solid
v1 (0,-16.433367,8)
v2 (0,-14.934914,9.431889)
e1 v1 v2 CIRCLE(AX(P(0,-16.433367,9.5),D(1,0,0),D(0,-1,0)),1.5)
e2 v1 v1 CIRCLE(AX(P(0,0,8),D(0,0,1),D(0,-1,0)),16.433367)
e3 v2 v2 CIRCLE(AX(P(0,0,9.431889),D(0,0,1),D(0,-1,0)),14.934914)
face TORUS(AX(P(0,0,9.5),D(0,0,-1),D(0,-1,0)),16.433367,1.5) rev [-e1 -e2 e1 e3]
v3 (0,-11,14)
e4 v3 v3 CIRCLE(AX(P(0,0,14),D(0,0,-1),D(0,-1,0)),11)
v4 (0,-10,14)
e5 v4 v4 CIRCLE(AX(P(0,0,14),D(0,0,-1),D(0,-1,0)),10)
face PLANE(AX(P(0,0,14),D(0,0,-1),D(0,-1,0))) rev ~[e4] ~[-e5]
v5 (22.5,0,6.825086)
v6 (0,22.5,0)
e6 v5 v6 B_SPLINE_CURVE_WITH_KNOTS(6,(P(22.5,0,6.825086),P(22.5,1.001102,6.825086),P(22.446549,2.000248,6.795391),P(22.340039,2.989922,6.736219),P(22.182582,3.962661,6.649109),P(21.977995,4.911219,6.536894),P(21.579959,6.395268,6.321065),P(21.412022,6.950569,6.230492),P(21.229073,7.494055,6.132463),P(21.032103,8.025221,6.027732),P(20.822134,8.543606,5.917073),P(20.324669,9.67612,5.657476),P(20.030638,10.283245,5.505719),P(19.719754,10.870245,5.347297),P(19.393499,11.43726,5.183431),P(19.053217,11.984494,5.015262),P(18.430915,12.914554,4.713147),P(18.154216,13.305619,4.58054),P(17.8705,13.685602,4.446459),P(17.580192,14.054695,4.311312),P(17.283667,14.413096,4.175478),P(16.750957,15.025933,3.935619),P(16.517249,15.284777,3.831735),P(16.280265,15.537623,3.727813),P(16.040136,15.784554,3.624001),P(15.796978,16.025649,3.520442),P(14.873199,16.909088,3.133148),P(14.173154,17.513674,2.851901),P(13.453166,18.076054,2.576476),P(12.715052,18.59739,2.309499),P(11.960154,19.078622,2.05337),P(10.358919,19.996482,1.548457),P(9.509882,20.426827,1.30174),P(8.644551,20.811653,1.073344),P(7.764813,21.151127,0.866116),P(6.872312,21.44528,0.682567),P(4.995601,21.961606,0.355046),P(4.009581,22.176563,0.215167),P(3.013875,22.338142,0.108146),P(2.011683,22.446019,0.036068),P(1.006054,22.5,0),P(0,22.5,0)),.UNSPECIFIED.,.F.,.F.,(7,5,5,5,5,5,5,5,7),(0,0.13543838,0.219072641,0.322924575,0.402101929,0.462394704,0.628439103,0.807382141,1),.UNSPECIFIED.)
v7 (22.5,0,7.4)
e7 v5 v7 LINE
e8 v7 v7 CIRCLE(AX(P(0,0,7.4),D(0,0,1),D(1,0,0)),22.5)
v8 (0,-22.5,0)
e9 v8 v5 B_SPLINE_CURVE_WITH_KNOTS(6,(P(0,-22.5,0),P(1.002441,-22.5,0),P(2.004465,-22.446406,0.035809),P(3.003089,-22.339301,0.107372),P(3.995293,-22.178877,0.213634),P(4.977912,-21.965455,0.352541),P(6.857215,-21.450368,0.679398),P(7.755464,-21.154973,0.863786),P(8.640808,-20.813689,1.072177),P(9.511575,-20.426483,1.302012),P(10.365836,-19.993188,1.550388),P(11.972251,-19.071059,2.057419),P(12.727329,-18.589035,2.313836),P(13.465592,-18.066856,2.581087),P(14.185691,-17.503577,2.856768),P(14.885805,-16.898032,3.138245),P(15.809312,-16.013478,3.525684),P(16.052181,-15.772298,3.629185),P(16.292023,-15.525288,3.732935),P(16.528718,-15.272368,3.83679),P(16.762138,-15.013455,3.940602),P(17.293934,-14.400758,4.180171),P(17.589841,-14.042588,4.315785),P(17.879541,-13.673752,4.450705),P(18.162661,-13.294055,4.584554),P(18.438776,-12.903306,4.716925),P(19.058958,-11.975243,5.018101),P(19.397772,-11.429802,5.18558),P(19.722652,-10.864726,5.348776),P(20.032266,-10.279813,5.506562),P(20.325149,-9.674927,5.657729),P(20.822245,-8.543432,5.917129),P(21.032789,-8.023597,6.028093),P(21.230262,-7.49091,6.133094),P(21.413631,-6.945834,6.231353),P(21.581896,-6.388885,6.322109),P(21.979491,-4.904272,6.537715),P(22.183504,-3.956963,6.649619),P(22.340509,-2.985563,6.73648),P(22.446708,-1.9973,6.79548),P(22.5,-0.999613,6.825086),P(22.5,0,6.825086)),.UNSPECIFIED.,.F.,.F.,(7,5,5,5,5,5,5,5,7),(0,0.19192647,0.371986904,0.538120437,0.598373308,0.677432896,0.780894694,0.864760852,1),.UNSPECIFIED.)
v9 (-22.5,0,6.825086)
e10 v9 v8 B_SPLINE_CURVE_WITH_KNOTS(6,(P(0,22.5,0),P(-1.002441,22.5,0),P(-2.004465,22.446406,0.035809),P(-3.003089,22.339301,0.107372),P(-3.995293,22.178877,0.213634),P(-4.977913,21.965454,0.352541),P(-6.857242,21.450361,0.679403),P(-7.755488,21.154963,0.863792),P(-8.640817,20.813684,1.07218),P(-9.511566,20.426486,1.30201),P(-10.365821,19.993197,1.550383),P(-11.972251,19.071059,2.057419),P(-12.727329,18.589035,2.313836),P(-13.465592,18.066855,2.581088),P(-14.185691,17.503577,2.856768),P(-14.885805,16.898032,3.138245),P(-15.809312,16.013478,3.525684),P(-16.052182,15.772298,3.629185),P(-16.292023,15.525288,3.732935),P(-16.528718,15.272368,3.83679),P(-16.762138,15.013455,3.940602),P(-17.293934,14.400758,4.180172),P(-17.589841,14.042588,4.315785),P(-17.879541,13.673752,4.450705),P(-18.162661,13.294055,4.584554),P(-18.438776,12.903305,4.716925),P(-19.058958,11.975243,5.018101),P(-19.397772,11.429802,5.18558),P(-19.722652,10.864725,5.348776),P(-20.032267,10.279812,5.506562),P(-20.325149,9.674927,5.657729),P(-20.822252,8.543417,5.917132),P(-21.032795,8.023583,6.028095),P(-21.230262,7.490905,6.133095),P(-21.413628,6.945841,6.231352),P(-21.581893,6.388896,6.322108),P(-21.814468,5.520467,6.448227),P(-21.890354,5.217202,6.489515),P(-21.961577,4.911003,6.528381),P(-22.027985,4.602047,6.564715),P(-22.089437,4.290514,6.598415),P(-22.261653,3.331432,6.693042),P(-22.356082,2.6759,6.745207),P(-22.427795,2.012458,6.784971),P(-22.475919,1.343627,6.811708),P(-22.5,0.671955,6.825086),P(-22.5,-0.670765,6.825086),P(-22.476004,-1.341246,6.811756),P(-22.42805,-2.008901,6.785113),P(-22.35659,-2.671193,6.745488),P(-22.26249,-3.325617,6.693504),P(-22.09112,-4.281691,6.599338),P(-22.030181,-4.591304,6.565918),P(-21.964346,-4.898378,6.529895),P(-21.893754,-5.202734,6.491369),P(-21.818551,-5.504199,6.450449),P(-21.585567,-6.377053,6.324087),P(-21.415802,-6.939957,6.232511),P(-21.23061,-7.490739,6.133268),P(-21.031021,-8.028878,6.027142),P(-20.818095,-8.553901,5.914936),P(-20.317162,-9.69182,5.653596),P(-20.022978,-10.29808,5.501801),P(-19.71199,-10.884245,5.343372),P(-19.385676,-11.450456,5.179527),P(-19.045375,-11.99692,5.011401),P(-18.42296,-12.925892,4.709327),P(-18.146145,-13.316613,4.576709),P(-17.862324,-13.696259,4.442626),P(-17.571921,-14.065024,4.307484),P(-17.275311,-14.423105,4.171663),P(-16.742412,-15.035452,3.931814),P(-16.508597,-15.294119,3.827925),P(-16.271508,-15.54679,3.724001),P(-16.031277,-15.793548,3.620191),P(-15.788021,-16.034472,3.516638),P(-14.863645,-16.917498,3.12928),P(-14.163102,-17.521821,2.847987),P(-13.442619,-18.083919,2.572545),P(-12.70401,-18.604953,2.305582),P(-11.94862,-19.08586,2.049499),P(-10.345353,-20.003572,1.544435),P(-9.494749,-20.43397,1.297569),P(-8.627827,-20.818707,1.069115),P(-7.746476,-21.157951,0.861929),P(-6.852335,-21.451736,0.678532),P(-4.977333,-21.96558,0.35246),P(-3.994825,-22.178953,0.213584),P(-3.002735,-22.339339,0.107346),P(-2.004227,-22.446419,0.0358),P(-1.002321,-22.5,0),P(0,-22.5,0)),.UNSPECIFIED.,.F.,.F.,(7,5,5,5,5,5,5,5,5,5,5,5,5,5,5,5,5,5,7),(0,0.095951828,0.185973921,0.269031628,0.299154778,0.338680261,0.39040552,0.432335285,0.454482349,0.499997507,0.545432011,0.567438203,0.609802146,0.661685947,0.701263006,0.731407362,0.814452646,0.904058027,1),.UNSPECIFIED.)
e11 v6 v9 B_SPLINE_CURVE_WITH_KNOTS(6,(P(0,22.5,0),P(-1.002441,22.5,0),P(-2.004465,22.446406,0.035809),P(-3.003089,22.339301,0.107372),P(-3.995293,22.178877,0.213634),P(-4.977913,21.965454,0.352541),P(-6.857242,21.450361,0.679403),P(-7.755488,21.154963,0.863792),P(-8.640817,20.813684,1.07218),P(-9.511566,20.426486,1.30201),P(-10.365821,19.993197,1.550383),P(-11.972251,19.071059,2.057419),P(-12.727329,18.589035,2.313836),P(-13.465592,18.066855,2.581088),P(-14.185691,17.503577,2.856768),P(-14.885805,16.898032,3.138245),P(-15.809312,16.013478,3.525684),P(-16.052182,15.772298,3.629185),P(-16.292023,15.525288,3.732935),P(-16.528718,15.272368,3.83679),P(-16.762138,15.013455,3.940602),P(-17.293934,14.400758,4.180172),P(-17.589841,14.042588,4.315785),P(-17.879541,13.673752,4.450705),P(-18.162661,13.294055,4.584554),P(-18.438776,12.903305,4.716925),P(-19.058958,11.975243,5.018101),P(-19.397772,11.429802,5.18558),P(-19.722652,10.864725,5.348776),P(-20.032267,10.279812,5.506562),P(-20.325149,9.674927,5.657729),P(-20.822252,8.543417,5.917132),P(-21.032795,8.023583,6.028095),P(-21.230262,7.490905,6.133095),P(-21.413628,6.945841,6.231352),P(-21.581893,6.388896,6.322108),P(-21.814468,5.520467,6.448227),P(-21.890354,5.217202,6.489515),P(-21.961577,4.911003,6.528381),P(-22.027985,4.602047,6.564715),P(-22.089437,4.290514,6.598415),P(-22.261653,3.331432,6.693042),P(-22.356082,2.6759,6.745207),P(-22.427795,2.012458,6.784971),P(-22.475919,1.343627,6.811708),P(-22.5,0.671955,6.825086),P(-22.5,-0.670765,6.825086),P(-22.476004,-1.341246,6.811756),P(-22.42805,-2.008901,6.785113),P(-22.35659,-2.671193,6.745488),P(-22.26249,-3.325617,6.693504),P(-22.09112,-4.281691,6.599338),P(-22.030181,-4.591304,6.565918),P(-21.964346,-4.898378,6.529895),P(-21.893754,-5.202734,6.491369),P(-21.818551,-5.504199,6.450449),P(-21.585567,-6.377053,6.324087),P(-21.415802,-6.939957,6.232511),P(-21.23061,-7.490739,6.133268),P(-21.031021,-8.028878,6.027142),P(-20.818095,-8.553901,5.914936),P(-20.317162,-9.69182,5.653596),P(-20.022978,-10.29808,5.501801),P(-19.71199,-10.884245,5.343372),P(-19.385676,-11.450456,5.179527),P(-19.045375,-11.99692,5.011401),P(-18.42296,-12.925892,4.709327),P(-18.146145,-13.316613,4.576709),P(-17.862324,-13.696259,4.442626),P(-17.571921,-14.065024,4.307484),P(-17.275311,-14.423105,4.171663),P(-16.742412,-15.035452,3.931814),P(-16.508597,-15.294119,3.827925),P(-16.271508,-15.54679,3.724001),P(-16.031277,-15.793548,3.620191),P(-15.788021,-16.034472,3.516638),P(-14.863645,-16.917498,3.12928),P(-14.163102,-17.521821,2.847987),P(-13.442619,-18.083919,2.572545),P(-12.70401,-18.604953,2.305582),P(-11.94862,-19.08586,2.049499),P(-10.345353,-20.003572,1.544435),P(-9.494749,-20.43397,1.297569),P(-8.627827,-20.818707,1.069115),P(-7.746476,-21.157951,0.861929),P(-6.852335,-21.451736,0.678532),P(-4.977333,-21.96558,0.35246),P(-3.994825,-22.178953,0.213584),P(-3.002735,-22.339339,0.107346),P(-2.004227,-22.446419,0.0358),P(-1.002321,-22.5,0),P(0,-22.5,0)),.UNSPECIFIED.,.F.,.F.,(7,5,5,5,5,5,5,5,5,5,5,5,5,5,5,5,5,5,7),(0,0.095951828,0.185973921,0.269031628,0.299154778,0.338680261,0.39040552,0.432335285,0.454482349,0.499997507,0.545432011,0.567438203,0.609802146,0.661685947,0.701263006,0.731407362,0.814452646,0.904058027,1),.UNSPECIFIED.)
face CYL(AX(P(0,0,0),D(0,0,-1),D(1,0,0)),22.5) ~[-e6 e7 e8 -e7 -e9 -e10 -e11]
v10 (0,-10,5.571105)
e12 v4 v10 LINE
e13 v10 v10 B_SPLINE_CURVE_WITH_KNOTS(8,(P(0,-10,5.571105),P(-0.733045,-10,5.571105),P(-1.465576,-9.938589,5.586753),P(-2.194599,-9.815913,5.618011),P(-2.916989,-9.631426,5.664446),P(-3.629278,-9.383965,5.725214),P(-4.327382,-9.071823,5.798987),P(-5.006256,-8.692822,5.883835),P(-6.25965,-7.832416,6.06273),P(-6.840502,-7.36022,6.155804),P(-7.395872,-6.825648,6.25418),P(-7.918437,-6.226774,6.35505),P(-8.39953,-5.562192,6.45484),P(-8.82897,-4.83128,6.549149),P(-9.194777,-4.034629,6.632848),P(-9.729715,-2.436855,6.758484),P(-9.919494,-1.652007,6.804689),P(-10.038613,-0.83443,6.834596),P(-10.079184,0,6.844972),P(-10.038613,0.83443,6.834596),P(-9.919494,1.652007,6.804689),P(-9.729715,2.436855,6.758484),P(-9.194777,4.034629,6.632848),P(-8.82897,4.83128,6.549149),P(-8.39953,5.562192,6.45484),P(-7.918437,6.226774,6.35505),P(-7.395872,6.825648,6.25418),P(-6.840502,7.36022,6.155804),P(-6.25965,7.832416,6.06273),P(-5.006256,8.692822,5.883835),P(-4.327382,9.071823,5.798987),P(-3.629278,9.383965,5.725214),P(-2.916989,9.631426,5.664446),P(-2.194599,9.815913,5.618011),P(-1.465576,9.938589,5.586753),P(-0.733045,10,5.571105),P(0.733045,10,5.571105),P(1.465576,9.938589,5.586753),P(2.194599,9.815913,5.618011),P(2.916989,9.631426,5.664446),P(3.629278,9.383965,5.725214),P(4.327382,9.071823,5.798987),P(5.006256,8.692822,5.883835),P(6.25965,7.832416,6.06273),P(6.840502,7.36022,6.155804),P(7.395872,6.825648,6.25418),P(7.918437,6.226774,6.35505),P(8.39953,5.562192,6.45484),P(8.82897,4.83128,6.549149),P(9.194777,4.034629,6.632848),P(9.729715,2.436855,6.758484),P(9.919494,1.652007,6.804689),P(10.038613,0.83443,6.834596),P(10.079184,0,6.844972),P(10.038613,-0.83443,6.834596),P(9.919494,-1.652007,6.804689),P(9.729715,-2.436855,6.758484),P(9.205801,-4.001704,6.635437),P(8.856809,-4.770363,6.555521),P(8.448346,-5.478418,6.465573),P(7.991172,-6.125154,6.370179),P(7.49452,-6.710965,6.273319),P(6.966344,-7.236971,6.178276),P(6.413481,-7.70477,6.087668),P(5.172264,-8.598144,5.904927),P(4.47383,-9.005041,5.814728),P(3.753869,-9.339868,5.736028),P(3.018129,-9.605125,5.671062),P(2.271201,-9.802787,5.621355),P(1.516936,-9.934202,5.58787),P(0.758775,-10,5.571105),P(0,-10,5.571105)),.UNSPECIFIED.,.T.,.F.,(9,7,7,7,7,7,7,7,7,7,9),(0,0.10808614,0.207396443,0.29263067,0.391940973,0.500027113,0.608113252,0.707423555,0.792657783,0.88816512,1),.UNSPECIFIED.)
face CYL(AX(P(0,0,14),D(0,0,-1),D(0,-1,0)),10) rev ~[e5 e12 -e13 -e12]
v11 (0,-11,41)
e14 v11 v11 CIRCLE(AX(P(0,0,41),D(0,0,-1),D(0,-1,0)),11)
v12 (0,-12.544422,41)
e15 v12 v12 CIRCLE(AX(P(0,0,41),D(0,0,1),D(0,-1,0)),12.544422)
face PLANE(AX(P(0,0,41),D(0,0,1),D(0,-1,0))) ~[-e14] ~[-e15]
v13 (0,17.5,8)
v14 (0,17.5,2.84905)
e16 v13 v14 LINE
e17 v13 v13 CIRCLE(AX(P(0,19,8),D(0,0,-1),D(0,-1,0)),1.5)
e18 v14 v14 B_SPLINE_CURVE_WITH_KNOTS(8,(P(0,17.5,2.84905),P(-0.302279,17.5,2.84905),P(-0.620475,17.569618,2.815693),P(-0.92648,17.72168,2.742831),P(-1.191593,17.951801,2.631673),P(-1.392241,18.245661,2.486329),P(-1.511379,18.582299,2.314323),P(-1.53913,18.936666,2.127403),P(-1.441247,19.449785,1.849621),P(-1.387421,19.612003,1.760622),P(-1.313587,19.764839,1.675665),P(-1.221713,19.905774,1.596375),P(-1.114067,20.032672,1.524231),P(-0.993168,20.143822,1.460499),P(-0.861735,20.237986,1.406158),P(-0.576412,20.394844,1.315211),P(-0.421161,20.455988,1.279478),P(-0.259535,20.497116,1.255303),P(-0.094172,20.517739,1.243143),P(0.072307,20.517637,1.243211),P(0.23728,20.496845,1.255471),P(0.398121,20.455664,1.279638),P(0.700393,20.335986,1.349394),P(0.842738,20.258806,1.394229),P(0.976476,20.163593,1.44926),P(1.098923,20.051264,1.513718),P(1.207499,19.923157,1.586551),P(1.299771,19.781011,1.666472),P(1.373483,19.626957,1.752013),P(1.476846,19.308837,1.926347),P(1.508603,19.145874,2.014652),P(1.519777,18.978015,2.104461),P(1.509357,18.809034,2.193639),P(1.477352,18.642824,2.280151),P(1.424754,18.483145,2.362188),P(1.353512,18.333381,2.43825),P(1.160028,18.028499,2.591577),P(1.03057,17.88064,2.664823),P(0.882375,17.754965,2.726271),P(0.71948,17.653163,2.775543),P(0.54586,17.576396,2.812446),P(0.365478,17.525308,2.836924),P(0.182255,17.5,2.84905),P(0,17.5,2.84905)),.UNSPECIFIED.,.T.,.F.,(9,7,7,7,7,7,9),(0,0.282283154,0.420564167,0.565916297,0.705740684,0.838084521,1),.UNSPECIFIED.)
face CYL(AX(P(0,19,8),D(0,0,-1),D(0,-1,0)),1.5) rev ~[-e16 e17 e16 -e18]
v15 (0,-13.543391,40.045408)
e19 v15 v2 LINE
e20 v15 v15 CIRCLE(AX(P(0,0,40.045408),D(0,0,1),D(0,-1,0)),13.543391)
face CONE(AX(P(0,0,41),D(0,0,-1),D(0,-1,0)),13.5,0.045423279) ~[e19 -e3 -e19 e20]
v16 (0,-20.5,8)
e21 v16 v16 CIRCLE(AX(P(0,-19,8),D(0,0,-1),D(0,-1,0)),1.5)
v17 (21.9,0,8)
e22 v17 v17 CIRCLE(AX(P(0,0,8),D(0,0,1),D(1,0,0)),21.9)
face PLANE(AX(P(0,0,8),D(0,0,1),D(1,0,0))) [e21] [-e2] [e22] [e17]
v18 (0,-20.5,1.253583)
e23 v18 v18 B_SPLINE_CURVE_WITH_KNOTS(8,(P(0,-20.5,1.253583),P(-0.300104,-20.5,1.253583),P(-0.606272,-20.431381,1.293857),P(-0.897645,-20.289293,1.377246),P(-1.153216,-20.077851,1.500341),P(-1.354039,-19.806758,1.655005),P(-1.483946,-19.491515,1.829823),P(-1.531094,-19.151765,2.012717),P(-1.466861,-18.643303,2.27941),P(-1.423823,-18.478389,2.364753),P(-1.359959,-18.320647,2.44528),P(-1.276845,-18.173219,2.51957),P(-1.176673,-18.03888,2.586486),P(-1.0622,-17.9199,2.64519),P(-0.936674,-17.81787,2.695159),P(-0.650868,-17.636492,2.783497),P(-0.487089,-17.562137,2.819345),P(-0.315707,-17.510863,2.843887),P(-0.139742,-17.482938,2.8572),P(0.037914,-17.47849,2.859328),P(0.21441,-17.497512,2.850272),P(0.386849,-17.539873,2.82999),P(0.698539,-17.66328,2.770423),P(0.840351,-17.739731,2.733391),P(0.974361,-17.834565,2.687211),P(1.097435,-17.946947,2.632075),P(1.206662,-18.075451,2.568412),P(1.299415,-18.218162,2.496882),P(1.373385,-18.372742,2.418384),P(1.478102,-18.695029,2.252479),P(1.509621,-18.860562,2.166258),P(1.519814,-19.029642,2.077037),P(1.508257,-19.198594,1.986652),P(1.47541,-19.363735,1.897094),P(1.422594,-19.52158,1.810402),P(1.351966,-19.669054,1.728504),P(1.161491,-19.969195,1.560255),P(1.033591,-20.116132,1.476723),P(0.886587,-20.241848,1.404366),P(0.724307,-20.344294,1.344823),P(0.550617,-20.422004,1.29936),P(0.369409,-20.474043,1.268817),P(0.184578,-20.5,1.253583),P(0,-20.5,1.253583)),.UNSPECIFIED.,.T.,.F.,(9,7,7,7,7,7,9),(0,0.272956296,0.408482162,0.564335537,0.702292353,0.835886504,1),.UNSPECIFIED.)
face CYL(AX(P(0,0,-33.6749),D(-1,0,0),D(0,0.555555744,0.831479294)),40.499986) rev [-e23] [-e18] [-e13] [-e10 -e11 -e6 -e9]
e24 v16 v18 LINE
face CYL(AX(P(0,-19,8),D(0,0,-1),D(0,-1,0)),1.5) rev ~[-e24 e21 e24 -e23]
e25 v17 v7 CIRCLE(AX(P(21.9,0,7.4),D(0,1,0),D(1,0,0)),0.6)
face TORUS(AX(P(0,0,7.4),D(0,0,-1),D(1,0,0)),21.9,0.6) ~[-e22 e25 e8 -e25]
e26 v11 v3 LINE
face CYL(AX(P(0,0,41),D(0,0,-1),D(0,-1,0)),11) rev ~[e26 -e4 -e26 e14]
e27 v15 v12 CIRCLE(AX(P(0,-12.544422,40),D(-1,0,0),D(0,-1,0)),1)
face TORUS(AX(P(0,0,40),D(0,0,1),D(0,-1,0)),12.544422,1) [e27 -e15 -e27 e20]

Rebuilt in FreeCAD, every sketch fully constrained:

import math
import FreeCAD as App
import Part
import Sketcher
from FreeCAD import Vector


def edges_at(feature, points):
    """Names of the edges that pass closest to the given points."""
    edges = feature.Shape.Edges
    near = lambda p: min(range(len(edges)), key=lambda i: edges[i].distToShape(Part.Vertex(*p))[0])
    return sorted({f"Edge{near(p) + 1}" for p in points})

doc = App.newDocument("Part")
params = doc.addObject("Spreadsheet::Sheet", "Params")
for row, (alias, value) in enumerate([
    ("sketch1_diameter", "45 mm"),
    ("pad1_length", "8 mm"),
    ("sketch2_height", "33 mm"),
    ("sketch2_width", "15 mm"),
    ("sketch2_width2", "13.5 mm"),
    ("revolution_angle", "360 deg"),
    ("fillet_radius", "1.5 mm"),
    ("sketch3_radius", "40.5 mm"),
    ("sketch3_width", "45 mm"),
    ("pocket1_length", "45 mm"),
    ("fillet2_radius", "0.6 mm"),
    ("fillet3_radius", "1 mm"),
    ("sketch4_diameter", "20 mm"),
    ("hole_diameter", "20 mm"),
    ("hole_cbore_diameter", "22 mm"),
    ("hole_cbore_depth", "27 mm"),
    ("sketch5_diameter", "3 mm"),
    ("hole2_diameter", "3 mm"),
], start=1):
    params.set(f"A{row}", alias)
    params.set(f"B{row}", "=" + value)
    params.setAlias(f"B{row}", alias)

body = doc.addObject("PartDesign::Body", "Body")

sketch1 = body.newObject("Sketcher::SketchObject", "Sketch")
sketch1.AttachmentSupport = (doc.getObject("XY_Plane"), [""])
sketch1.MapMode = "FlatFace"
sketch1.addGeometry(Part.Circle(Vector(0, 0, 0), Vector(0, 0, 1), 22), False)
sketch1.addConstraint([
    Sketcher.Constraint("Coincident", 0, 3, -1, 1),
    Sketcher.Constraint("Diameter", 0, 45.0),
])
sketch1.setExpression("Constraints[1]", "Params.sketch1_diameter")
pad1 = body.newObject("PartDesign::Pad", "Pad")
pad1.Profile = sketch1
pad1.setExpression("Length", "Params.pad1_length")

sketch2 = body.newObject("Sketcher::SketchObject", "Sketch001")
sketch2.AttachmentSupport = (doc.getObject("YZ_Plane"), [""])
sketch2.MapMode = "FlatFace"
sketch2.addGeometry([
    Part.LineSegment(Vector(-15, 8, 0), Vector(0, 8, 0)),
    Part.LineSegment(Vector(0, 8, 0), Vector(0, 41, 0)),
    Part.LineSegment(Vector(0, 41, 0), Vector(-14, 41, 0)),
    Part.LineSegment(Vector(-14, 41, 0), Vector(-15, 8, 0)),
], False)
sketch2.addConstraint([
    Sketcher.Constraint("Coincident", 0, 2, 1, 1),
    Sketcher.Constraint("Coincident", 1, 2, 2, 1),
    Sketcher.Constraint("Coincident", 2, 2, 3, 1),
    Sketcher.Constraint("Coincident", 3, 2, 0, 1),
    Sketcher.Constraint("Horizontal", 0),
    Sketcher.Constraint("Vertical", 1),
    Sketcher.Constraint("Horizontal", 2),
    Sketcher.Constraint("PointOnObject", 0, 2, -2),
    Sketcher.Constraint("DistanceY", 1, 1, 1, 2, 33.0),
    Sketcher.Constraint("DistanceX", 0, 1, 0, 2, 15.0),
    Sketcher.Constraint("DistanceX", 2, 2, 2, 1, 13.5),
    Sketcher.Constraint("DistanceY", -1, 1, 0, 2, 8.0),
])
sketch2.setExpression("Constraints[8]", "Params.sketch2_height")
sketch2.setExpression("Constraints[9]", "Params.sketch2_width")
sketch2.setExpression("Constraints[10]", "Params.sketch2_width2")
revolution = body.newObject("PartDesign::Revolution", "Revolution")
revolution.Profile = sketch2
revolution.ReferenceAxis = (sketch2, ["V_Axis"])
revolution.setExpression("Angle", "Params.revolution_angle")
doc.recompute()

fillet = body.newObject("PartDesign::Fillet", "Fillet")
fillet.Base = (revolution, edges_at(revolution, [(0, 15, 8)]))
fillet.setExpression("Radius", "Params.fillet_radius")

sketch3 = body.newObject("Sketcher::SketchObject", "Sketch002")
sketch3.AttachmentSupport = (doc.getObject("YZ_Plane"), [""])
sketch3.MapMode = "FlatFace"
sketch3.addGeometry([
    Part.LineSegment(Vector(-22, 0, 0), Vector(22, 0, 0)),
    Part.ArcOfCircle(Part.Circle(Vector(0, -34, 0), Vector(0, 0, 1), 40), math.radians(56), math.radians(124)),
], False)
sketch3.addConstraint([
    Sketcher.Constraint("Coincident", 0, 1, 1, 2),
    Sketcher.Constraint("Coincident", 1, 1, 0, 2),
    Sketcher.Constraint("Horizontal", 0),
    Sketcher.Constraint("Symmetric", 0, 1, 1, 1, -1, 1),
    Sketcher.Constraint("Radius", 1, 40.5),
    Sketcher.Constraint("DistanceX", 0, 1, 0, 2, 45.0),
])
sketch3.setExpression("Constraints[4]", "Params.sketch3_radius")
sketch3.setExpression("Constraints[5]", "Params.sketch3_width")
pocket1 = body.newObject("PartDesign::Pocket", "Pocket")
pocket1.Profile = sketch3
pocket1.setExpression("Length", "Params.pocket1_length")
pocket1.Midplane = True
doc.recompute()

fillet2 = body.newObject("PartDesign::Fillet", "Fillet001")
fillet2.Base = (pocket1, edges_at(pocket1, [(-22.5, 0, 8)]))
fillet2.setExpression("Radius", "Params.fillet2_radius")
doc.recompute()

fillet3 = body.newObject("PartDesign::Fillet", "Fillet002")
fillet3.Base = (fillet2, edges_at(fillet2, [(0, 13.5, 41)]))
fillet3.setExpression("Radius", "Params.fillet3_radius")

sketch4 = body.newObject("Sketcher::SketchObject", "Sketch003")
sketch4.AttachmentSupport = (doc.getObject("XY_Plane"), [""])
sketch4.MapMode = "FlatFace"
sketch4.AttachmentOffset = App.Placement(Vector(0, 0, 41), App.Rotation())
sketch4.addGeometry(Part.Circle(Vector(0, 0, 0), Vector(0, 0, 1), 10), False)
sketch4.addConstraint([
    Sketcher.Constraint("Coincident", 0, 3, -1, 1),
    Sketcher.Constraint("Diameter", 0, 20.0),
])
sketch4.setExpression("Constraints[1]", "Params.sketch4_diameter")
doc.recompute()
hole = body.newObject("PartDesign::Hole", "Hole")
hole.Profile = sketch4
hole.ThreadType = "None"
hole.setExpression("Diameter", "Params.hole_diameter")
hole.DepthType = "ThroughAll"
hole.HoleCutType = "Counterbore"
hole.setExpression("HoleCutDiameter", "Params.hole_cbore_diameter")
hole.setExpression("HoleCutDepth", "Params.hole_cbore_depth")

sketch5 = body.newObject("Sketcher::SketchObject", "Sketch004")
sketch5.AttachmentSupport = (doc.getObject("XY_Plane"), [""])
sketch5.MapMode = "FlatFace"
sketch5.AttachmentOffset = App.Placement(Vector(0, 0, 8), App.Rotation())
sketch5.addGeometry([
    Part.Circle(Vector(0, -19, 0), Vector(0, 0, 1), 1.5),
    Part.Circle(Vector(0, 19, 0), Vector(0, 0, 1), 1.5),
], False)
sketch5.addConstraint([
    Sketcher.Constraint("Equal", 0, 1),
    Sketcher.Constraint("Symmetric", 0, 3, 1, 3, -1, 1),
    Sketcher.Constraint("PointOnObject", 0, 3, -2),
    Sketcher.Constraint("Diameter", 0, 3.0),
    Sketcher.Constraint("DistanceY", 0, 3, -1, 1, 19.0),
])
sketch5.setExpression("Constraints[3]", "Params.sketch5_diameter")
doc.recompute()
hole2 = body.newObject("PartDesign::Hole", "Hole001")
hole2.Profile = sketch5
hole2.ThreadType = "None"
hole2.setExpression("Diameter", "Params.hole2_diameter")
hole2.DepthType = "ThroughAll"

doc.recompute()
